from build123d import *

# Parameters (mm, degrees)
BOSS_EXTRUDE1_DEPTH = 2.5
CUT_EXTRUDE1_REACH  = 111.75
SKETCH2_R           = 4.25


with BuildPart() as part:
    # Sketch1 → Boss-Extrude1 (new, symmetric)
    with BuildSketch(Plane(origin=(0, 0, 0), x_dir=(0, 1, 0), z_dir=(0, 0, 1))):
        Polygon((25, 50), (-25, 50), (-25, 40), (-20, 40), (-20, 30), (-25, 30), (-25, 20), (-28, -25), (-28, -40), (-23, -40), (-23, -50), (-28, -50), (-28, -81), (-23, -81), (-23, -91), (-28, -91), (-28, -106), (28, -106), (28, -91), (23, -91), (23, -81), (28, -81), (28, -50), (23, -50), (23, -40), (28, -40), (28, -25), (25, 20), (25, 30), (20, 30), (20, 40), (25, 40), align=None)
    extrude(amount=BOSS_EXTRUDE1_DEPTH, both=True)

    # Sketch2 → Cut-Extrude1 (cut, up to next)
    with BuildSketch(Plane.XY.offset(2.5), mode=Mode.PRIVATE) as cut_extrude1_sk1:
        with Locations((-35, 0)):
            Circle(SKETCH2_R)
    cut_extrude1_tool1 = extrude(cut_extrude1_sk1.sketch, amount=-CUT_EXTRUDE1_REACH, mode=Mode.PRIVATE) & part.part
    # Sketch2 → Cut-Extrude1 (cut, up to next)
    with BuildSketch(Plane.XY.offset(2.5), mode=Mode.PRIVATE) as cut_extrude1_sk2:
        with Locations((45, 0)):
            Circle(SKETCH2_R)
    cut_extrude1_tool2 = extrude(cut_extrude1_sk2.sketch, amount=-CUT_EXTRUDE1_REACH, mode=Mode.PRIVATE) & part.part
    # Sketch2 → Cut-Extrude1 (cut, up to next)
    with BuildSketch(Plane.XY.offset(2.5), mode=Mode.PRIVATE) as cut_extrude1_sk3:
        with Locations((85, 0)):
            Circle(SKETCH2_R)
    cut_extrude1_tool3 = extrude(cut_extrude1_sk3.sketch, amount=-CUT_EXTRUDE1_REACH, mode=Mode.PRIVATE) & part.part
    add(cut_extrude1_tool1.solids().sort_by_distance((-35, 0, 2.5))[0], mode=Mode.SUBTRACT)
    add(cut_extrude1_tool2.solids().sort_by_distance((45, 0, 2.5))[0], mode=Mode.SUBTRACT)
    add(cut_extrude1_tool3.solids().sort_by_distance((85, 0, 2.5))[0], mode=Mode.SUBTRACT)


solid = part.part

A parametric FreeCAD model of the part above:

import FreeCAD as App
import Part
import Sketcher
Q = App.Units.Quantity


def add_polygon(sketch, points):
    """Adds a closed chain of lines whose ends are joined by coincident constraints."""
    first, n = sketch.GeometryCount, len(points)
    for a, b in zip(points, points[1:] + points[:1]):
        sketch.addGeometry(Part.LineSegment(App.Vector(*a, 0), App.Vector(*b, 0)), False)
    for i in range(n):
        sketch.addConstraint(Sketcher.Constraint("Coincident", first + i, 2, first + (i + 1) % n, 1))

doc = App.newDocument("Part")
params = doc.addObject("Spreadsheet::Sheet", "Params")
for row, (alias, value) in enumerate([
    ("sketch1_width", "10 mm"),
    ("sketch1_width2", "15 mm"),
    ("sketch1_width3", "31 mm"),
    ("sketch1_height", "50 mm"),
    ("sketch1_height2", "5 mm"),
    ("pad1_length", "5 mm"),
    ("sketch2_diameter", "8.5 mm"),
    ("sketch3_diameter", "8.5 mm"),
    ("sketch4_diameter", "8.5 mm"),
], start=1):
    params.set(f"A{row}", alias)
    params.set(f"B{row}", "=" + value)
    params.setAlias(f"B{row}", alias)

body = doc.addObject("PartDesign::Body", "Body")

sketch1 = body.newObject("Sketcher::SketchObject", "Sketch")
sketch1.AttachmentSupport = (doc.getObject("XY_Plane"), [""])
sketch1.MapMode = "FlatFace"
add_polygon(sketch1, [(-50, 25), (-50, -25), (-40, -25), (-40, -20), (-30, -20), (-30, -25), (-20, -25), (25, -28), (40, -28), (40, -23), (50, -23), (50, -28), (81, -28), (81, -23), (91, -23), (91, -28), (106, -28), (106, 28), (91, 28), (91, 23), (81, 23), (81, 28), (50, 28), (50, 23), (40, 23), (40, 28), (25, 28), (-20, 25), (-30, 25), (-30, 20), (-40, 20), (-40, 25)])
sketch1.addConstraint(Sketcher.Constraint("Vertical", 0))
sketch1.addConstraint(Sketcher.Constraint("Horizontal", 1))
sketch1.addConstraint(Sketcher.Constraint("Vertical", 2))
sketch1.addConstraint(Sketcher.Constraint("Horizontal", 3))
sketch1.addConstraint(Sketcher.Constraint("Vertical", 4))
sketch1.addConstraint(Sketcher.Constraint("Horizontal", 5))
sketch1.addConstraint(Sketcher.Constraint("Horizontal", 7))
sketch1.addConstraint(Sketcher.Constraint("Vertical", 8))
sketch1.addConstraint(Sketcher.Constraint("Horizontal", 9))
sketch1.addConstraint(Sketcher.Constraint("Vertical", 10))
sketch1.addConstraint(Sketcher.Constraint("Horizontal", 11))
sketch1.addConstraint(Sketcher.Constraint("Vertical", 12))
sketch1.addConstraint(Sketcher.Constraint("Horizontal", 13))
sketch1.addConstraint(Sketcher.Constraint("Vertical", 14))
sketch1.addConstraint(Sketcher.Constraint("Horizontal", 15))
sketch1.addConstraint(Sketcher.Constraint("Vertical", 16))
sketch1.addConstraint(Sketcher.Constraint("Horizontal", 17))
sketch1.addConstraint(Sketcher.Constraint("Vertical", 18))
sketch1.addConstraint(Sketcher.Constraint("Horizontal", 19))
sketch1.addConstraint(Sketcher.Constraint("Vertical", 20))
sketch1.addConstraint(Sketcher.Constraint("Horizontal", 21))
sketch1.addConstraint(Sketcher.Constraint("Vertical", 22))
sketch1.addConstraint(Sketcher.Constraint("Horizontal", 23))
sketch1.addConstraint(Sketcher.Constraint("Vertical", 24))
sketch1.addConstraint(Sketcher.Constraint("Horizontal", 25))
sketch1.addConstraint(Sketcher.Constraint("Horizontal", 27))
sketch1.addConstraint(Sketcher.Constraint("Vertical", 28))
sketch1.addConstraint(Sketcher.Constraint("Horizontal", 29))
sketch1.addConstraint(Sketcher.Constraint("Vertical", 30))
sketch1.addConstraint(Sketcher.Constraint("Horizontal", 31))
sketch1.addConstraint(Sketcher.Constraint("Symmetric", 14, 2, 17, 2, -1))
sketch1.addConstraint(Sketcher.Constraint("Symmetric", 12, 2, 19, 2, -1))
sketch1.addConstraint(Sketcher.Constraint("Symmetric", 10, 2, 21, 2, -1))
sketch1.addConstraint(Sketcher.Constraint("Symmetric", 8, 2, 23, 2, -1))
sketch1.addConstraint(Sketcher.Constraint("Symmetric", 6, 2, 25, 2, -1))
sketch1.addConstraint(Sketcher.Constraint("Symmetric", 5, 2, 26, 2, -1))
sketch1.addConstraint(Sketcher.Constraint("Symmetric", 3, 2, 28, 2, -1))
sketch1.addConstraint(Sketcher.Constraint("Symmetric", 1, 2, 30, 2, -1))
sketch1.addConstraint(Sketcher.Constraint("Horizontal", 1, 2, 4, 2))
sketch1.addConstraint(Sketcher.Constraint("Horizontal", 7, 2, 10, 2))
sketch1.addConstraint(Sketcher.Constraint("Horizontal", 9, 2, 12, 2))
sketch1.addConstraint(Sketcher.Constraint("Horizontal", 11, 2, 14, 2))
sketch1.addConstraint(Sketcher.Constraint("Equal", 1, 3))
sketch1.addConstraint(Sketcher.Constraint("Equal", 3, 5))
sketch1.addConstraint(Sketcher.Constraint("Equal", 5, 9))
sketch1.addConstraint(Sketcher.Constraint("Equal", 9, 13))
sketch1.addConstraint(Sketcher.Constraint("Equal", 7, 15))
sketch1.addConstraint(Sketcher.Constraint("Equal", 4, 8))
sketch1.addConstraint(Sketcher.Constraint("DistanceX", 1, 1, 1, 2, Q("10 mm")))
sketch1.addConstraint(Sketcher.Constraint("DistanceX", 7, 1, 7, 2, Q("15 mm")))
sketch1.addConstraint(Sketcher.Constraint("DistanceX", 11, 1, 11, 2, Q("31 mm")))
sketch1.addConstraint(Sketcher.Constraint("DistanceY", 0, 2, 0, 1, Q("50 mm")))
sketch1.addConstraint(Sketcher.Constraint("DistanceY", 2, 1, 2, 2, Q("5 mm")))
sketch1.addConstraint(Sketcher.Constraint("DistanceY", 16, 1, 16, 2, Q("56 mm")))
sketch1.addConstraint(Sketcher.Constraint("DistanceX", 0, 2, -1, 1, Q("50 mm")))
sketch1.addConstraint(Sketcher.Constraint("DistanceX", -1, 1, 6, 2, Q("25 mm")))
sketch1.setExpression("Constraints[80]", "Params.sketch1_width")
sketch1.setExpression("Constraints[81]", "Params.sketch1_width2")
sketch1.setExpression("Constraints[82]", "Params.sketch1_width3")
sketch1.setExpression("Constraints[83]", "Params.sketch1_height")
sketch1.setExpression("Constraints[84]", "Params.sketch1_height2")
pad1 = body.newObject("PartDesign::Pad", "Pad")
pad1.Profile = sketch1
pad1.setExpression("Length", "Params.pad1_length")
pad1.Midplane = True

sketch2 = body.newObject("Sketcher::SketchObject", "Sketch001")
sketch2.AttachmentSupport = (doc.getObject("XY_Plane"), [""])
sketch2.MapMode = "FlatFace"
sketch2.AttachmentOffset = App.Placement(App.Vector(0, 0, 2.5), App.Rotation())
sketch2.addGeometry(Part.Circle(App.Vector(-35, 0, 0), App.Vector(0, 0, 1), 4.2), False)
sketch2.addConstraint(Sketcher.Constraint("PointOnObject", 0, 3, -1))
sketch2.addConstraint(Sketcher.Constraint("Diameter", 0, Q("8.5 mm")))
sketch2.addConstraint(Sketcher.Constraint("DistanceX", 0, 3, -1, 1, Q("35 mm")))
sketch2.setExpression("Constraints[1]", "Params.sketch2_diameter")
pocket1 = body.newObject("PartDesign::Pocket", "Pocket")
pocket1.Profile = sketch2
pocket1.Type = "UpToFirst"

sketch3 = body.newObject("Sketcher::SketchObject", "Sketch002")
sketch3.AttachmentSupport = (doc.getObject("XY_Plane"), [""])
sketch3.MapMode = "FlatFace"
sketch3.AttachmentOffset = App.Placement(App.Vector(0, 0, 2.5), App.Rotation())
sketch3.addGeometry(Part.Circle(App.Vector(45, 0, 0), App.Vector(0, 0, 1), 4.2), False)
sketch3.addConstraint(Sketcher.Constraint("PointOnObject", 0, 3, -1))
sketch3.addConstraint(Sketcher.Constraint("Diameter", 0, Q("8.5 mm")))
sketch3.addConstraint(Sketcher.Constraint("DistanceX", -1, 1, 0, 3, Q("45 mm")))
sketch3.setExpression("Constraints[1]", "Params.sketch3_diameter")
pocket2 = body.newObject("PartDesign::Pocket", "Pocket001")
pocket2.Profile = sketch3
pocket2.Type = "UpToFirst"

sketch4 = body.newObject("Sketcher::SketchObject", "Sketch003")
sketch4.AttachmentSupport = (doc.getObject("XY_Plane"), [""])
sketch4.MapMode = "FlatFace"
sketch4.AttachmentOffset = App.Placement(App.Vector(0, 0, 2.5), App.Rotation())
sketch4.addGeometry(Part.Circle(App.Vector(85, 0, 0), App.Vector(0, 0, 1), 4.2), False)
sketch4.addConstraint(Sketcher.Constraint("PointOnObject", 0, 3, -1))
sketch4.addConstraint(Sketcher.Constraint("Diameter", 0, Q("8.5 mm")))
sketch4.addConstraint(Sketcher.Constraint("DistanceX", -1, 1, 0, 3, Q("85 mm")))
sketch4.setExpression("Constraints[1]", "Params.sketch4_diameter")
pocket3 = body.newObject("PartDesign::Pocket", "Pocket002")
pocket3.Profile = sketch4
pocket3.Type = "UpToFirst"

doc.recompute()
